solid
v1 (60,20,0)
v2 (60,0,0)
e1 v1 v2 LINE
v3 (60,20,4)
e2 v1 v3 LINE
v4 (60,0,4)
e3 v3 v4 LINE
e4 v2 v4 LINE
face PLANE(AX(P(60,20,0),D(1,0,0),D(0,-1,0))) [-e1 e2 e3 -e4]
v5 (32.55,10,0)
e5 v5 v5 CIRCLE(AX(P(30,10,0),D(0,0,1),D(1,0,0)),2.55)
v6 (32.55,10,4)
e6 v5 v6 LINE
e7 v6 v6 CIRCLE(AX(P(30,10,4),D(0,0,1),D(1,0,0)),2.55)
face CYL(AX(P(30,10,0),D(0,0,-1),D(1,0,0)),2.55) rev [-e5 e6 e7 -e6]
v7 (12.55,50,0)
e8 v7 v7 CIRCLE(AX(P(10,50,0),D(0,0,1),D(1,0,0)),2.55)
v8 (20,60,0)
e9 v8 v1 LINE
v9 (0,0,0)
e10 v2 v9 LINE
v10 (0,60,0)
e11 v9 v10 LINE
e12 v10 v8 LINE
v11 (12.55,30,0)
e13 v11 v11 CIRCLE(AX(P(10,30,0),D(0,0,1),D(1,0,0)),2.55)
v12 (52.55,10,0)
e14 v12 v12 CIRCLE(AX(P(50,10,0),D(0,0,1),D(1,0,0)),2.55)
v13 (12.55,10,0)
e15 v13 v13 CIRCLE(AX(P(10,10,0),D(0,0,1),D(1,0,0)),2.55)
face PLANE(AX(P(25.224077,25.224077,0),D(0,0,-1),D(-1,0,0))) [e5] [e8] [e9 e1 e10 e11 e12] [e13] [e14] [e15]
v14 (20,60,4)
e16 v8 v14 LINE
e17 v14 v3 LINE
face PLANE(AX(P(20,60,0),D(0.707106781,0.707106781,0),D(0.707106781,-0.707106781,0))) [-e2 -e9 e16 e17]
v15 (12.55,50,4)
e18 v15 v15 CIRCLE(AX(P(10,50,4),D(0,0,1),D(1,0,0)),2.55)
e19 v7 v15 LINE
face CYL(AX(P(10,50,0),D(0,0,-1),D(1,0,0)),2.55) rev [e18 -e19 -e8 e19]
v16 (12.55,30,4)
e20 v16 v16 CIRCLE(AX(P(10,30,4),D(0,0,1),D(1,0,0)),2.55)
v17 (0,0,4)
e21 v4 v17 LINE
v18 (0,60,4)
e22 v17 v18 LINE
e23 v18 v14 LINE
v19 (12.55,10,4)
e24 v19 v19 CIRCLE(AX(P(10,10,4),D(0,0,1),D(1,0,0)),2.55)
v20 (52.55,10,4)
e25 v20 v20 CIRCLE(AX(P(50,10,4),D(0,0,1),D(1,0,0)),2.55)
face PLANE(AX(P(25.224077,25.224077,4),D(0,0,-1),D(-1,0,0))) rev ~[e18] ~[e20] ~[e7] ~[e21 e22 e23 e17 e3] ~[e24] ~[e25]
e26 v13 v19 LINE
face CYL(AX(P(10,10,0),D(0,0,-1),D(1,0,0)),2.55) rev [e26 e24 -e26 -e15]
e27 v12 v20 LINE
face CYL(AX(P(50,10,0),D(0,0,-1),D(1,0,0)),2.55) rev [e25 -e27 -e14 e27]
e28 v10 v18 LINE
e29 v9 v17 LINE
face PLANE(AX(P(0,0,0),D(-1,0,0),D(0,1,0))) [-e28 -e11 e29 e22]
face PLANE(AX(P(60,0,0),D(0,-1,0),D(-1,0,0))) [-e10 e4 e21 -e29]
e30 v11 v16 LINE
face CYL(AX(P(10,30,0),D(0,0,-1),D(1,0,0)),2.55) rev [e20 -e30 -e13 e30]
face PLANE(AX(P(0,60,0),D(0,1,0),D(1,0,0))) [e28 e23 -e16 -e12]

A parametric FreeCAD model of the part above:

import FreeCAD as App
import Part
import Sketcher
from FreeCAD import Vector
Q = App.Units.Quantity

doc = App.newDocument("Part")
params = doc.addObject("Spreadsheet::Sheet", "Params")
for row, (alias, value) in enumerate([
    ("sketch1_diameter", "5.1 mm"),
    ("sketch1_width", "60 mm"),
    ("sketch1_width2", "20 mm"),
    ("pad1_length", "4 mm"),
], start=1):
    params.set(f"A{row}", alias)
    params.set(f"B{row}", "=" + value)
    params.setAlias(f"B{row}", alias)

body = doc.addObject("PartDesign::Body", "Body")

sketch1 = doc.addObject("Sketcher::SketchObject", "Sketch")
body.addObject(sketch1)
sketch1.AttachmentSupport = (doc.XY_Plane, [""])
sketch1.MapMode = "FlatFace"
sketch1.addGeometry([
    Part.LineSegment(Vector(0, 60, 0), Vector(0, 0, 0)),
    Part.LineSegment(Vector(0, 0, 0), Vector(60, 0, 0)),
    Part.LineSegment(Vector(60, 0, 0), Vector(60, 20, 0)),
    Part.LineSegment(Vector(60, 20, 0), Vector(20, 60, 0)),
    Part.LineSegment(Vector(20, 60, 0), Vector(0, 60, 0)),
    Part.Circle(Vector(50, 10, 0), Vector(0, 0, 1), 2.5),
    Part.Circle(Vector(30, 10, 0), Vector(0, 0, 1), 2.5),
    Part.Circle(Vector(10, 10, 0), Vector(0, 0, 1), 2.5),
    Part.Circle(Vector(10, 30, 0), Vector(0, 0, 1), 2.5),
    Part.Circle(Vector(10, 50, 0), Vector(0, 0, 1), 2.5),
], False)
sketch1.addConstraint([
    Sketcher.Constraint("Coincident", 0, 2, 1, 1),
    Sketcher.Constraint("Coincident", 1, 2, 2, 1),
    Sketcher.Constraint("Coincident", 2, 2, 3, 1),
    Sketcher.Constraint("Coincident", 3, 2, 4, 1),
    Sketcher.Constraint("Coincident", 4, 2, 0, 1),
    Sketcher.Constraint("Vertical", 0),
    Sketcher.Constraint("Horizontal", 1),
    Sketcher.Constraint("Vertical", 2),
    Sketcher.Constraint("Horizontal", 4),
    Sketcher.Constraint("Coincident", 0, 2, -1, 1),
    Sketcher.Constraint("Equal", 5, 6),
    Sketcher.Constraint("Equal", 6, 7),
    Sketcher.Constraint("Equal", 7, 8),
    Sketcher.Constraint("Equal", 8, 9),
    Sketcher.Constraint("Horizontal", 5, 3, 6, 3),
    Sketcher.Constraint("Horizontal", 6, 3, 7, 3),
    Sketcher.Constraint("Vertical", 7, 3, 8, 3),
    Sketcher.Constraint("Vertical", 8, 3, 9, 3),
    Sketcher.Constraint("Equal", 1, 0),
    Sketcher.Constraint("Equal", 4, 2),
    Sketcher.Constraint("Diameter", 5, Q("5.1 mm")),
    Sketcher.Constraint("DistanceX", 1, 1, 1, 2, Q("60 mm")),
    Sketcher.Constraint("DistanceX", 4, 2, 4, 1, Q("20 mm")),
    Sketcher.Constraint("DistanceX", -1, 1, 5, 3, Q("50 mm")),
    Sketcher.Constraint("DistanceY", -1, 1, 5, 3, Q("10 mm")),
    Sketcher.Constraint("DistanceX", -1, 1, 6, 3, Q("30 mm")),
    Sketcher.Constraint("DistanceX", -1, 1, 7, 3, Q("10 mm")),
    Sketcher.Constraint("DistanceY", -1, 1, 8, 3, Q("30 mm")),
    Sketcher.Constraint("DistanceY", -1, 1, 9, 3, Q("50 mm")),
])
sketch1.setExpression("Constraints[20]", "Params.sketch1_diameter")
sketch1.setExpression("Constraints[21]", "Params.sketch1_width")
sketch1.setExpression("Constraints[22]", "Params.sketch1_width2")
pad1 = doc.addObject("PartDesign::Pad", "Pad")
body.addObject(pad1)
pad1.Profile = sketch1
pad1.setExpression("Length", "Params.pad1_length")

doc.recompute()
